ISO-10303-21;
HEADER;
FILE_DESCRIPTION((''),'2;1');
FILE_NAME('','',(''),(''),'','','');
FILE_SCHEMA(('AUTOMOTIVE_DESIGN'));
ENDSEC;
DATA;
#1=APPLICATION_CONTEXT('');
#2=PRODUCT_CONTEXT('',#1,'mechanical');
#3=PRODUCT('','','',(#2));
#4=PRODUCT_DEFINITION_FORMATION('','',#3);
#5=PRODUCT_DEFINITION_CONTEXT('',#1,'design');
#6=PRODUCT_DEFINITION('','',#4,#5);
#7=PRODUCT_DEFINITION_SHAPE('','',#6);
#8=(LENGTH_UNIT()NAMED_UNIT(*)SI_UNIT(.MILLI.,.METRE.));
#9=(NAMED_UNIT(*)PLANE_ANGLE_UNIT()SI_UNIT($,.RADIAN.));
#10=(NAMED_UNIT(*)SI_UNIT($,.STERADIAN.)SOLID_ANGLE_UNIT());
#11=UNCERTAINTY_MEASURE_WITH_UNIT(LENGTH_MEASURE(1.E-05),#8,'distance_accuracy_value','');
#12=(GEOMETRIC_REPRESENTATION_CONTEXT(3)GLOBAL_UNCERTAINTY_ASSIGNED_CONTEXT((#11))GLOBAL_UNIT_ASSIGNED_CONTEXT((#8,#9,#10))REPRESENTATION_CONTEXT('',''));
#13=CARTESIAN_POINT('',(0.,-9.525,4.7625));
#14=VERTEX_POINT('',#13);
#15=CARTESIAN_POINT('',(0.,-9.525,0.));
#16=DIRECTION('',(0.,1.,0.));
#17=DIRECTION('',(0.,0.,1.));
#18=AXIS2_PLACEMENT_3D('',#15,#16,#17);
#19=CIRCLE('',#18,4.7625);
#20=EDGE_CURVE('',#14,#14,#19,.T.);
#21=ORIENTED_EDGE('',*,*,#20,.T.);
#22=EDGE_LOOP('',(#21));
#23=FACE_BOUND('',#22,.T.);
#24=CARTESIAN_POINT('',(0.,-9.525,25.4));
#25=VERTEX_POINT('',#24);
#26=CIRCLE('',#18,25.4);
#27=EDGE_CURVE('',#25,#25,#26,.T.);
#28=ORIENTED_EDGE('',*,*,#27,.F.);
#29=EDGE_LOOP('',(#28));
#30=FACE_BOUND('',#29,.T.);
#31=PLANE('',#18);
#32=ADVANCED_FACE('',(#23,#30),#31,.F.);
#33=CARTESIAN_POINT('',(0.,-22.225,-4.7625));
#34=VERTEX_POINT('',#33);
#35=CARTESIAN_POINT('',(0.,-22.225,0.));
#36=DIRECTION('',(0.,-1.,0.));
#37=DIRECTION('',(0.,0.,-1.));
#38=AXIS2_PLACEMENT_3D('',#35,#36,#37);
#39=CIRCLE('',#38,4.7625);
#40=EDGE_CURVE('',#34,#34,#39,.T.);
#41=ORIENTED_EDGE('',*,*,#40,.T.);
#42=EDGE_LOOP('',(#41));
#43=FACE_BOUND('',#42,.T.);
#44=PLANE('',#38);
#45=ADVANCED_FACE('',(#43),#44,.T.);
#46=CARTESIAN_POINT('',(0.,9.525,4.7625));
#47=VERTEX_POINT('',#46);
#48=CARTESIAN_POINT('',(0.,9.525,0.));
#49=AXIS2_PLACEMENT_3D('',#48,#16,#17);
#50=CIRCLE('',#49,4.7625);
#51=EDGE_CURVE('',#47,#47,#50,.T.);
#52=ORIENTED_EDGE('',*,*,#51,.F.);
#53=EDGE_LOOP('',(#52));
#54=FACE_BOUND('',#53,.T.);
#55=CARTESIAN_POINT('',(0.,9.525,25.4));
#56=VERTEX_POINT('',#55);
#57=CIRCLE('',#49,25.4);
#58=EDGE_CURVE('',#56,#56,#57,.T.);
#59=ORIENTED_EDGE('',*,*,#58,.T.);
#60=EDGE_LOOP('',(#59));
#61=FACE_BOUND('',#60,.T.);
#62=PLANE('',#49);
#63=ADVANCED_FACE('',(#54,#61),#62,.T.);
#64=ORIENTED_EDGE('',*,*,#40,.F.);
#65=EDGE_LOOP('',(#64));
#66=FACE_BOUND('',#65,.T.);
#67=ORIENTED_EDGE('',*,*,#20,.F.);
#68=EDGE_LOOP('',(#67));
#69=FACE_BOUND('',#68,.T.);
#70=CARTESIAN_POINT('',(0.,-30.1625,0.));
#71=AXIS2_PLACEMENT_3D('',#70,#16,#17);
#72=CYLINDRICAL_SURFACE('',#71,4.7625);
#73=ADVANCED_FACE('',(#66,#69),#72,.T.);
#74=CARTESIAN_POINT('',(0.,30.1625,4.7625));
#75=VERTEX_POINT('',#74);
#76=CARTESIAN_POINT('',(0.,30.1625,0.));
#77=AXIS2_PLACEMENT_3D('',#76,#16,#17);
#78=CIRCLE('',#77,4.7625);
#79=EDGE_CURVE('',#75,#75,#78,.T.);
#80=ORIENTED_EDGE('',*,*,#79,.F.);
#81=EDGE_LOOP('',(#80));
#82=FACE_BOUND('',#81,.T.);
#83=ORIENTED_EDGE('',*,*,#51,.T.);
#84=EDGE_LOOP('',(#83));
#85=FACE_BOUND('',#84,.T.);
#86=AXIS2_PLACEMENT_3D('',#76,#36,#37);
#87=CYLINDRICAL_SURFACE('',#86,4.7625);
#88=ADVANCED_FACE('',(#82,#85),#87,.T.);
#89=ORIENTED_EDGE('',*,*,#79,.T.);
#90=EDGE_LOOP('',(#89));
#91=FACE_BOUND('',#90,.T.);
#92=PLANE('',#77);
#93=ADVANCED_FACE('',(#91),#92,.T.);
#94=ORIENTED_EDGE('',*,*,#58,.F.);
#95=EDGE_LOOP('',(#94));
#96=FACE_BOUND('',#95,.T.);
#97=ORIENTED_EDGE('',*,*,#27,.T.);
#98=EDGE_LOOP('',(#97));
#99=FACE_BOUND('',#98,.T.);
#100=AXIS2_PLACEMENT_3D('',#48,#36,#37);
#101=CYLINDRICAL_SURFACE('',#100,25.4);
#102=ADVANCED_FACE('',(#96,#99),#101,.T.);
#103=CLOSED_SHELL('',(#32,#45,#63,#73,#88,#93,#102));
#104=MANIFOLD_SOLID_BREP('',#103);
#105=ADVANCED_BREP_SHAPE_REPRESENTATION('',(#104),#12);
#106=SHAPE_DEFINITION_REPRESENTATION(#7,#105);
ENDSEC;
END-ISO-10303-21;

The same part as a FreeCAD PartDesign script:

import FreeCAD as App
import Part
import Sketcher
from FreeCAD import Vector
Q = App.Units.Quantity

doc = App.newDocument("Part")
body = doc.addObject("PartDesign::Body", "Body")

# Sketch on XZ plane
sketch1 = body.newObject("Sketcher::SketchObject", "Sketch")
sketch1.AttachmentSupport = (doc.getObject("XZ_Plane"), [""])
sketch1.MapMode = "FlatFace"
sketch1.addGeometry(Part.Circle(Vector(0, 0, 0), Vector(0, 0, 1), 25), False)
sketch1.addConstraint([
    Sketcher.Constraint("Coincident", 0, 3, -1, 1),
    Sketcher.Constraint("Diameter", 0, Q("2 in")),
])
pad1 = body.newObject("PartDesign::Pad", "Pad")
pad1.Profile = sketch1
pad1.Length = Q("0.75 in")
pad1.Midplane = True

# Sketch on XZ plane
sketch2 = body.newObject("Sketcher::SketchObject", "Sketch001")
sketch2.AttachmentSupport = (doc.getObject("XZ_Plane"), [""])
sketch2.MapMode = "FlatFace"
sketch2.AttachmentOffset = App.Placement(Vector(0, 0, -0.375 * 25.4), App.Rotation())
sketch2.addGeometry(Part.Circle(Vector(0, 0, 0), Vector(0, 0, 1), 4.8), False)
sketch2.addConstraint([
    Sketcher.Constraint("Coincident", 0, 3, -1, 1),
    Sketcher.Constraint("Diameter", 0, Q("0.375 in")),
])
pad2 = body.newObject("PartDesign::Pad", "Pad001")
pad2.Profile = sketch2
pad2.Length = Q("0.8125 in")
pad2.Reversed = True
doc.recompute()

mirrored = body.newObject("PartDesign::Mirrored", "Mirrored")
mirrored.Originals = [pad2]
mirrored.MirrorPlane = (doc.getObject("XZ_Plane"), [""])
body.Tip = mirrored

# Sketch on XZ plane
sketch3 = body.newObject("Sketcher::SketchObject", "Sketch002")
sketch3.AttachmentSupport = (doc.getObject("XZ_Plane"), [""])
sketch3.MapMode = "FlatFace"
sketch3.AttachmentOffset = App.Placement(Vector(0, 0, 1.1875 * 25.4), App.Rotation())
sketch3.addGeometry(Part.Circle(Vector(0, 0, 0), Vector(0, 0, 1), 4.8), False)
sketch3.addConstraint([
    Sketcher.Constraint("Coincident", 0, 3, -1, 1),
    Sketcher.Constraint("Diameter", 0, Q("0.375 in")),
])
pocket1 = body.newObject("PartDesign::Pocket", "Pocket")
pocket1.Profile = sketch3
pocket1.Length = Q("0.3125 in")

doc.recompute()
